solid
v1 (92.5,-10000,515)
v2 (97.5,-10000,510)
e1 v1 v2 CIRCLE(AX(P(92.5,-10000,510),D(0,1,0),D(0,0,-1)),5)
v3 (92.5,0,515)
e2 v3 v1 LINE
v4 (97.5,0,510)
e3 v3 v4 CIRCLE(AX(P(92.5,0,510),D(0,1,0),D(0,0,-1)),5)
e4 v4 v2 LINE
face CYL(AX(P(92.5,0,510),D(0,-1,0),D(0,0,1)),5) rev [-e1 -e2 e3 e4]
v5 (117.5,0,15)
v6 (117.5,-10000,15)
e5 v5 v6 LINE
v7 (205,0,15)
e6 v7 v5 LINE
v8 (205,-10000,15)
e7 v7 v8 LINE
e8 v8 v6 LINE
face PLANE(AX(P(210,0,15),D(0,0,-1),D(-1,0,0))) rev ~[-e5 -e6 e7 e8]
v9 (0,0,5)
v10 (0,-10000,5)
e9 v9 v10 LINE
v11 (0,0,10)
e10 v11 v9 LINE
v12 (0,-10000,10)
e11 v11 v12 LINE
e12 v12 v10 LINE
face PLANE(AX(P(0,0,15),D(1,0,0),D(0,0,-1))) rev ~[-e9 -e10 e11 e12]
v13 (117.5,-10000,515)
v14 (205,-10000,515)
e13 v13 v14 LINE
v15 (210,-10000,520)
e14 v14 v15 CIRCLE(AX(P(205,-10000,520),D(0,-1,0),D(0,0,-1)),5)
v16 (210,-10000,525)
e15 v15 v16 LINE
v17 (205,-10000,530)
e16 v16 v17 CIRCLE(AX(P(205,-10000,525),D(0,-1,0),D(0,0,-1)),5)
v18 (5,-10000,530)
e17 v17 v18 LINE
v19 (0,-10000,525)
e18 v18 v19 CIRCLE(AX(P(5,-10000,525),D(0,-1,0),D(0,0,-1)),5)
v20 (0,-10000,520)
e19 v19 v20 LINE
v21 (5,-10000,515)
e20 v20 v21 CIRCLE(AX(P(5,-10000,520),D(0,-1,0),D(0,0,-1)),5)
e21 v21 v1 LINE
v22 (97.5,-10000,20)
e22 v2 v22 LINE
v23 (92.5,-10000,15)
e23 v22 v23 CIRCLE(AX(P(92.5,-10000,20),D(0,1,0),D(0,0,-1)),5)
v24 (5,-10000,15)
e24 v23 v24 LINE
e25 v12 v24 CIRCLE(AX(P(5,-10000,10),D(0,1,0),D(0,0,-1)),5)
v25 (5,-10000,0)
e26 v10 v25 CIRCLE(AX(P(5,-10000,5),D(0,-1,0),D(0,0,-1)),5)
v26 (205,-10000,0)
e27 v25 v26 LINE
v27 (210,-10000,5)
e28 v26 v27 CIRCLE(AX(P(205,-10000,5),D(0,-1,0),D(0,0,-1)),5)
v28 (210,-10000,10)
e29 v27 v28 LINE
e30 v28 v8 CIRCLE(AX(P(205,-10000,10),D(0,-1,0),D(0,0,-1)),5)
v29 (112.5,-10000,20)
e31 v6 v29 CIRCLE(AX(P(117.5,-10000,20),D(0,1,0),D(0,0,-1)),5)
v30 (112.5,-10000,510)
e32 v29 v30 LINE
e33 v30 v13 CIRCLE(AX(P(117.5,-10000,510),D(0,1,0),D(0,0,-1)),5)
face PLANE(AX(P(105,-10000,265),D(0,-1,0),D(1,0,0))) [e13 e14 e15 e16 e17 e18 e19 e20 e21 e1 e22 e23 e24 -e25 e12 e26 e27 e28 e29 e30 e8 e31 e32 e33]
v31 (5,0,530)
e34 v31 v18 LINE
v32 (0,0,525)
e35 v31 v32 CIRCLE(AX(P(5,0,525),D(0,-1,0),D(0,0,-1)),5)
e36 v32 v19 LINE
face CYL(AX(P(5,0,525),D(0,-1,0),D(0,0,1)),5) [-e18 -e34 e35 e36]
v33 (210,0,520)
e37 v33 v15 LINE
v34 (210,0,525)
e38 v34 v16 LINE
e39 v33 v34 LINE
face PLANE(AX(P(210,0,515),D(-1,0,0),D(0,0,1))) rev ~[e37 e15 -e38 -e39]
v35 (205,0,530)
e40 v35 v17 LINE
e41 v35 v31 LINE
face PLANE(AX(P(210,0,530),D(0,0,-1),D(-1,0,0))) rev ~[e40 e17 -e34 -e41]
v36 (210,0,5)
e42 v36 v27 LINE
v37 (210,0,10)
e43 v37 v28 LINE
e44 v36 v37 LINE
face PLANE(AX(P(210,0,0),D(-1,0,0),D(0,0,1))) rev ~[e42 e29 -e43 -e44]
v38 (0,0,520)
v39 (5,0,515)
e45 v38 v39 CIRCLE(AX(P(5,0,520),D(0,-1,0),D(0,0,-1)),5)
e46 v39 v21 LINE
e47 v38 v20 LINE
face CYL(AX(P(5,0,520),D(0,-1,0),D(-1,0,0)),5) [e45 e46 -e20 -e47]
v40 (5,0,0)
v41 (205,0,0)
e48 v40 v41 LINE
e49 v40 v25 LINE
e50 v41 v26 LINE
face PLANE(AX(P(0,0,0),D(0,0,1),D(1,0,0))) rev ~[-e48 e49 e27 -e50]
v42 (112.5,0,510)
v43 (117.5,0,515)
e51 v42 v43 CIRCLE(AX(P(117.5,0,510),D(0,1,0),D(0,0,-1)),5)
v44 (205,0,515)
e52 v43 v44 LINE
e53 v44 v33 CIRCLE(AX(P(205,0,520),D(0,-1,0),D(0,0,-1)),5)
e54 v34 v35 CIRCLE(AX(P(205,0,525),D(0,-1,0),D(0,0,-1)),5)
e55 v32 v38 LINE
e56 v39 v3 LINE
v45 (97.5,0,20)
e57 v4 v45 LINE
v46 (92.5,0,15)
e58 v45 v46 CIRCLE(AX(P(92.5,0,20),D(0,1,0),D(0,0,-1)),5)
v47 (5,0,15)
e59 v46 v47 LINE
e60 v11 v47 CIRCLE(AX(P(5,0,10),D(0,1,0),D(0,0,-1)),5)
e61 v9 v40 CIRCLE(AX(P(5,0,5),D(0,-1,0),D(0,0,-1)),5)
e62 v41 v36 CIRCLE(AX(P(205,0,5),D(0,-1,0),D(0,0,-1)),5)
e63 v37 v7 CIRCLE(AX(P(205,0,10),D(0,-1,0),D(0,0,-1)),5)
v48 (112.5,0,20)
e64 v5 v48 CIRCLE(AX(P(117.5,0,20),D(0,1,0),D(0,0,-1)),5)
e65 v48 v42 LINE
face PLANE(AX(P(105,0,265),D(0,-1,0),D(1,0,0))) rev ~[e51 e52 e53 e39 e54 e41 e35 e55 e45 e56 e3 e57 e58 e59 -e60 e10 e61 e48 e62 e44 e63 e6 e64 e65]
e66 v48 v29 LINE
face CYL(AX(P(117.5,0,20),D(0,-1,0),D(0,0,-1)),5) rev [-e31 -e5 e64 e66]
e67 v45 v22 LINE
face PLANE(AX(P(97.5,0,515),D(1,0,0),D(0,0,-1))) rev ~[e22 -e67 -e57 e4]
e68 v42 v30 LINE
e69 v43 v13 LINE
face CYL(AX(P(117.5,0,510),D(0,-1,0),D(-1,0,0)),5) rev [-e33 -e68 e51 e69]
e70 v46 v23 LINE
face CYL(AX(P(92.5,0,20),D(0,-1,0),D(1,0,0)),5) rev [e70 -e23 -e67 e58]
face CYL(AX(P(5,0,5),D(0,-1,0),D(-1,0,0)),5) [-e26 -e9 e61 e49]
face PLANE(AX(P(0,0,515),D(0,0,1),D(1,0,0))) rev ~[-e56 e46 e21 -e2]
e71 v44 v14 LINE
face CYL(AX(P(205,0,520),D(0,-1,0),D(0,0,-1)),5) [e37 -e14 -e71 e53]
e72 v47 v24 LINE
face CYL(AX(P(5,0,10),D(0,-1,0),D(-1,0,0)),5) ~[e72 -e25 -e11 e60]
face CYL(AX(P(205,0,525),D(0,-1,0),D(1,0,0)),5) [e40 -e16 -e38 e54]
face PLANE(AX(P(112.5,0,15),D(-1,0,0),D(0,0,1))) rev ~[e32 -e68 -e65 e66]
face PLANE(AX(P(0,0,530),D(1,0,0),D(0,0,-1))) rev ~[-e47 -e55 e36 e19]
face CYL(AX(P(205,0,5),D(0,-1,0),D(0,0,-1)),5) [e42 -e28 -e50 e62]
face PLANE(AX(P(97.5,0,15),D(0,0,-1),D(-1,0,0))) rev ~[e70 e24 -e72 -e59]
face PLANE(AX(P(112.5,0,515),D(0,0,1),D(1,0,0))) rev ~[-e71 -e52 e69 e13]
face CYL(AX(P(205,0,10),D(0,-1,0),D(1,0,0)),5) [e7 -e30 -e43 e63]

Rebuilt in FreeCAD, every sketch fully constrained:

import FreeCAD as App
import Part
import Sketcher

V = App.Vector


def edges_at(feature, points):
    """Names of the edges that pass closest to the given points."""
    edges = feature.Shape.Edges
    near = lambda p: min(range(len(edges)), key=lambda i: edges[i].distToShape(Part.Vertex(*p))[0])
    return sorted({f"Edge{near(p) + 1}" for p in points})

doc = App.newDocument("Part")
params = doc.addObject("Spreadsheet::Sheet", "Params")
for row, (alias, value) in enumerate([
    ("sketch1_width", "210 mm"),
    ("sketch1_height", "15 mm"),
    ("sketch1_height2", "500 mm"),
    ("sketch1_width2", "97.5 mm"),
    ("pad1_length", "10000 mm"),
    ("fillet_radius", "5 mm"),
], start=1):
    params.set(f"A{row}", alias)
    params.set(f"B{row}", "=" + value)
    params.setAlias(f"B{row}", alias)

body = doc.addObject("PartDesign::Body", "Body")

# Sketch on XZ plane
sketch1 = body.newObject("Sketcher::SketchObject", "Sketch")
sketch1.AttachmentSupport = (doc.getObject("XZ_Plane"), [""])
sketch1.MapMode = "FlatFace"
sketch1.addGeometry([
    Part.LineSegment(V(0, 15, 0), V(0, 0, 0)),  # 0
    Part.LineSegment(V(0, 0, 0), V(210, 0, 0)),  # 1
    Part.LineSegment(V(210, 0, 0), V(210, 15, 0)),  # 2
    Part.LineSegment(V(210, 15, 0), V(112, 15, 0)),  # 3
    Part.LineSegment(V(112, 15, 0), V(112, 515, 0)),  # 4
    Part.LineSegment(V(112, 515, 0), V(210, 515, 0)),  # 5
    Part.LineSegment(V(210, 515, 0), V(210, 530, 0)),  # 6
    Part.LineSegment(V(210, 530, 0), V(0, 530, 0)),  # 7
    Part.LineSegment(V(0, 530, 0), V(0, 515, 0)),  # 8
    Part.LineSegment(V(0, 515, 0), V(98, 515, 0)),  # 9
    Part.LineSegment(V(98, 515, 0), V(98, 15, 0)),  # 10
    Part.LineSegment(V(98, 15, 0), V(0, 15, 0)),  # 11
], False)
sketch1.addConstraint([
    Sketcher.Constraint("Coincident", 0, 2, 1, 1),
    Sketcher.Constraint("Coincident", 1, 2, 2, 1),
    Sketcher.Constraint("Coincident", 2, 2, 3, 1),
    Sketcher.Constraint("Coincident", 3, 2, 4, 1),
    Sketcher.Constraint("Coincident", 4, 2, 5, 1),
    Sketcher.Constraint("Coincident", 5, 2, 6, 1),
    Sketcher.Constraint("Coincident", 6, 2, 7, 1),
    Sketcher.Constraint("Coincident", 7, 2, 8, 1),
    Sketcher.Constraint("Coincident", 8, 2, 9, 1),
    Sketcher.Constraint("Coincident", 9, 2, 10, 1),
    Sketcher.Constraint("Coincident", 10, 2, 11, 1),
    Sketcher.Constraint("Coincident", 11, 2, 0, 1),
    Sketcher.Constraint("Vertical", 0),
    Sketcher.Constraint("Horizontal", 1),
    Sketcher.Constraint("Vertical", 2),
    Sketcher.Constraint("Horizontal", 3),
    Sketcher.Constraint("Vertical", 4),
    Sketcher.Constraint("Horizontal", 5),
    Sketcher.Constraint("Vertical", 6),
    Sketcher.Constraint("Horizontal", 7),
    Sketcher.Constraint("Vertical", 8),
    Sketcher.Constraint("Horizontal", 9),
    Sketcher.Constraint("Vertical", 10),
    Sketcher.Constraint("Horizontal", 11),
    Sketcher.Constraint("Coincident", 0, 2, -1, 1),
    Sketcher.Constraint("PointOnObject", 7, 2, -2),
    Sketcher.Constraint("Horizontal", 5, 2, 8, 2),
    Sketcher.Constraint("Horizontal", 3, 2, 10, 2),
    Sketcher.Constraint("Vertical", 2, 2, 5, 2),
    Sketcher.Constraint("Equal", 5, 9),
    Sketcher.Constraint("Equal", 2, 6),
    Sketcher.Constraint("DistanceX", 1, 1, 1, 2, 210.0),
    Sketcher.Constraint("DistanceY", 0, 2, 0, 1, 15.0),
    Sketcher.Constraint("DistanceY", 4, 1, 4, 2, 500.0),
    Sketcher.Constraint("DistanceX", 3, 2, 3, 1, 97.5),
])
sketch1.setExpression("Constraints[31]", "Params.sketch1_width")
sketch1.setExpression("Constraints[32]", "Params.sketch1_height")
sketch1.setExpression("Constraints[33]", "Params.sketch1_height2")
sketch1.setExpression("Constraints[34]", "Params.sketch1_width2")
pad1 = body.newObject("PartDesign::Pad", "Pad")
pad1.Profile = sketch1
pad1.setExpression("Length", "Params.pad1_length")
doc.recompute()

fillet = body.newObject("PartDesign::Fillet", "Fillet")
fillet.Base = (pad1, edges_at(pad1, [
    (0, -5000, 530),
    (0, -5000, 515),
    (210, -5000, 530),
    (0, -5000, 15),
    (0, -5000, 0),
    (210, -5000, 15),
    (210, -5000, 0),
    (210, -5000, 515),
    (112.5, -5000, 15),
    (97.5, -5000, 15),
    (97.5, -5000, 515),
    (112.5, -5000, 515),
]))
fillet.setExpression("Radius", "Params.fillet_radius")

doc.recompute()
